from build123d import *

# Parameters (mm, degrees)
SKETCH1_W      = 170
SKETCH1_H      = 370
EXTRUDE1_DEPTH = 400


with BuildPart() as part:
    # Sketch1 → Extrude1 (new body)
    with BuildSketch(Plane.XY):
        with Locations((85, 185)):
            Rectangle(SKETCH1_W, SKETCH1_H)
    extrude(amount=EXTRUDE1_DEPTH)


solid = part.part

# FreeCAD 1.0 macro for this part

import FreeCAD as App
import Part
import Sketcher
from FreeCAD import Vector


def add_polygon(sketch, points):
    """Adds a closed chain of lines whose ends are joined by coincident constraints."""
    first, n = sketch.GeometryCount, len(points)
    for a, b in zip(points, points[1:] + points[:1]):
        sketch.addGeometry(Part.LineSegment(App.Vector(*a, 0), App.Vector(*b, 0)), False)
    for i in range(n):
        sketch.addConstraint(Sketcher.Constraint("Coincident", first + i, 2, first + (i + 1) % n, 1))

doc = App.newDocument("Part")
body = doc.addObject("PartDesign::Body", "Body")

sketch1 = body.newObject("Sketcher::SketchObject", "Sketch")
sketch1.AttachmentSupport = (doc.getObject("XY_Plane"), [""])
sketch1.MapMode = "FlatFace"
add_polygon(sketch1, [(0, 370), (0, 0), (170, 0), (170, 370)])
sketch1.addConstraint([
    Sketcher.Constraint("Vertical", 0),
    Sketcher.Constraint("Horizontal", 1),
    Sketcher.Constraint("Vertical", 2),
    Sketcher.Constraint("Horizontal", 3),
    Sketcher.Constraint("Coincident", 0, 2, -1, 1),
    Sketcher.Constraint("DistanceX", 1, 1, 1, 2, 170.0),
    Sketcher.Constraint("DistanceY", 0, 2, 0, 1, 370.0),
])
pad1 = body.newObject("PartDesign::Pad", "Pad")
pad1.Profile = sketch1
pad1.Length = 400

doc.recompute()
